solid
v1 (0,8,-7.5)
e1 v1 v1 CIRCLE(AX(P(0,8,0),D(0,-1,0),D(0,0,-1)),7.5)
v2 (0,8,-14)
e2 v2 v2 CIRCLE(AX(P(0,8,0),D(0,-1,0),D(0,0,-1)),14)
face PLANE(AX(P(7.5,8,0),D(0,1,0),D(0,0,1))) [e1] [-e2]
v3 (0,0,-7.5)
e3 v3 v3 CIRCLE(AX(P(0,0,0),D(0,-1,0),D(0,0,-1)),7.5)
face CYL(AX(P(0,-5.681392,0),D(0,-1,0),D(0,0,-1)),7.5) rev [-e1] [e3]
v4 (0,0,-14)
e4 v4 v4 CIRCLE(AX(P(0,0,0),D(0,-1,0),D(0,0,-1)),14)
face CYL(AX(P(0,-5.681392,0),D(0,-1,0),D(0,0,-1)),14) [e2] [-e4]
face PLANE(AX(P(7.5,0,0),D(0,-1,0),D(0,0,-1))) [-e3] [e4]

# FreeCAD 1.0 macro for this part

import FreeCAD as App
import Part
import Sketcher
Q = App.Units.Quantity

doc = App.newDocument("Part")
params = doc.addObject("Spreadsheet::Sheet", "Params")
for row, (alias, value) in enumerate([
    ("sketch1_height", "8 mm"),
    ("sketch1_width", "6.5 mm"),
    ("revolution_angle", "360 deg"),
], start=1):
    params.set(f"A{row}", alias)
    params.set(f"B{row}", "=" + value)
    params.setAlias(f"B{row}", alias)

body = doc.addObject("PartDesign::Body", "Body")

# Sketch on XY plane
sketch1 = doc.addObject("Sketcher::SketchObject", "Sketch")
body.addObject(sketch1)
sketch1.AttachmentSupport = (doc.XY_Plane, [""])
sketch1.MapMode = "FlatFace"
sketch1.addGeometry([
    Part.LineSegment(App.Vector(7.5, 8, 0), App.Vector(7.5, 0, 0)),
    Part.LineSegment(App.Vector(7.5, 0, 0), App.Vector(14, 0, 0)),
    Part.LineSegment(App.Vector(14, 0, 0), App.Vector(14, 8, 0)),
    Part.LineSegment(App.Vector(14, 8, 0), App.Vector(7.5, 8, 0)),
], False)
sketch1.addConstraint([
    Sketcher.Constraint("Coincident", 0, 2, 1, 1),
    Sketcher.Constraint("Coincident", 1, 2, 2, 1),
    Sketcher.Constraint("Coincident", 2, 2, 3, 1),
    Sketcher.Constraint("Coincident", 3, 2, 0, 1),
    Sketcher.Constraint("Vertical", 0),
    Sketcher.Constraint("Horizontal", 1),
    Sketcher.Constraint("Vertical", 2),
    Sketcher.Constraint("Horizontal", 3),
    Sketcher.Constraint("PointOnObject", 0, 2, -1),
    Sketcher.Constraint("DistanceY", 0, 2, 0, 1, Q("8 mm")),
    Sketcher.Constraint("DistanceX", 1, 1, 1, 2, Q("6.5 mm")),
    Sketcher.Constraint("DistanceX", -1, 1, 1, 2, Q("14 mm")),
])
sketch1.setExpression("Constraints[9]", "Params.sketch1_height")
sketch1.setExpression("Constraints[10]", "Params.sketch1_width")
revolution = doc.addObject("PartDesign::Revolution", "Revolution")
body.addObject(revolution)
revolution.Profile = sketch1
revolution.ReferenceAxis = (sketch1, ["V_Axis"])
revolution.setExpression("Angle", "Params.revolution_angle")

doc.recompute()
